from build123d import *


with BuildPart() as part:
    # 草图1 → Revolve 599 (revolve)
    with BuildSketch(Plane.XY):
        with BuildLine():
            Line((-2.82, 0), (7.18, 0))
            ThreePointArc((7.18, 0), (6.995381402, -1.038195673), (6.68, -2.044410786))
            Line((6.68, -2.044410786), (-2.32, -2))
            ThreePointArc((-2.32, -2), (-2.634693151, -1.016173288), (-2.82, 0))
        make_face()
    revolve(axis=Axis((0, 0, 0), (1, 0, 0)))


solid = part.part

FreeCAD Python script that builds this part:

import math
import FreeCAD as App
import Part
import Sketcher
from FreeCAD import Vector

doc = App.newDocument("Part")
body = doc.addObject("PartDesign::Body", "Body")

sketch1 = body.newObject("Sketcher::SketchObject", "Sketch")
sketch1.AttachmentSupport = (doc.getObject("XY_Plane"), [""])
sketch1.MapMode = "FlatFace"
sketch1.addGeometry([
    Part.LineSegment(Vector(7.18, 0, 0), Vector(-2.82, 0, 0)),
    Part.ArcOfCircle(Part.Circle(Vector(5.126447, 0.924112, 0), Vector(0, 0, 1), 8), math.radians(-173.366729), math.radians(-158.560784)),
    Part.LineSegment(Vector(-2.32, -2, 0), Vector(6.68, -2.044411, 0)),
    Part.ArcOfCircle(Part.Circle(Vector(-1.028143, 0.924112, 0), Vector(0, 0, 1), 8.26), math.radians(-21.062449), math.radians(-6.423581)),
], False)
sketch1.addConstraint([
    Sketcher.Constraint("Coincident", 0, 2, 1, 1),
    Sketcher.Constraint("Coincident", 1, 2, 2, 1),
    Sketcher.Constraint("Coincident", 2, 2, 3, 1),
    Sketcher.Constraint("Coincident", 3, 2, 0, 1),
    Sketcher.Constraint("Horizontal", 0),
    Sketcher.Constraint("PointOnObject", 0, 2, -1),
    Sketcher.Constraint("Horizontal", 1, 3, 3, 3),
    Sketcher.Constraint("Radius", 1, 8.0),
    Sketcher.Constraint("DistanceX", 0, 2, 0, 1, 10.0),
    Sketcher.Constraint("Radius", 3, 8.26),
    Sketcher.Constraint("DistanceY", 1, 2, -1, 1, 2.0),
    Sketcher.Constraint("DistanceX", 1, 2, 2, 2, 9.0),
    Sketcher.Constraint("DistanceX", 0, 2, 1, 2, 0.5),
    Sketcher.Constraint("DistanceX", 0, 2, -1, 1, 2.82),
])
revolution = body.newObject("PartDesign::Revolution", "Revolution")
revolution.Profile = sketch1
revolution.ReferenceAxis = (sketch1, ["H_Axis"])
revolution.Angle = 360

doc.recompute()
